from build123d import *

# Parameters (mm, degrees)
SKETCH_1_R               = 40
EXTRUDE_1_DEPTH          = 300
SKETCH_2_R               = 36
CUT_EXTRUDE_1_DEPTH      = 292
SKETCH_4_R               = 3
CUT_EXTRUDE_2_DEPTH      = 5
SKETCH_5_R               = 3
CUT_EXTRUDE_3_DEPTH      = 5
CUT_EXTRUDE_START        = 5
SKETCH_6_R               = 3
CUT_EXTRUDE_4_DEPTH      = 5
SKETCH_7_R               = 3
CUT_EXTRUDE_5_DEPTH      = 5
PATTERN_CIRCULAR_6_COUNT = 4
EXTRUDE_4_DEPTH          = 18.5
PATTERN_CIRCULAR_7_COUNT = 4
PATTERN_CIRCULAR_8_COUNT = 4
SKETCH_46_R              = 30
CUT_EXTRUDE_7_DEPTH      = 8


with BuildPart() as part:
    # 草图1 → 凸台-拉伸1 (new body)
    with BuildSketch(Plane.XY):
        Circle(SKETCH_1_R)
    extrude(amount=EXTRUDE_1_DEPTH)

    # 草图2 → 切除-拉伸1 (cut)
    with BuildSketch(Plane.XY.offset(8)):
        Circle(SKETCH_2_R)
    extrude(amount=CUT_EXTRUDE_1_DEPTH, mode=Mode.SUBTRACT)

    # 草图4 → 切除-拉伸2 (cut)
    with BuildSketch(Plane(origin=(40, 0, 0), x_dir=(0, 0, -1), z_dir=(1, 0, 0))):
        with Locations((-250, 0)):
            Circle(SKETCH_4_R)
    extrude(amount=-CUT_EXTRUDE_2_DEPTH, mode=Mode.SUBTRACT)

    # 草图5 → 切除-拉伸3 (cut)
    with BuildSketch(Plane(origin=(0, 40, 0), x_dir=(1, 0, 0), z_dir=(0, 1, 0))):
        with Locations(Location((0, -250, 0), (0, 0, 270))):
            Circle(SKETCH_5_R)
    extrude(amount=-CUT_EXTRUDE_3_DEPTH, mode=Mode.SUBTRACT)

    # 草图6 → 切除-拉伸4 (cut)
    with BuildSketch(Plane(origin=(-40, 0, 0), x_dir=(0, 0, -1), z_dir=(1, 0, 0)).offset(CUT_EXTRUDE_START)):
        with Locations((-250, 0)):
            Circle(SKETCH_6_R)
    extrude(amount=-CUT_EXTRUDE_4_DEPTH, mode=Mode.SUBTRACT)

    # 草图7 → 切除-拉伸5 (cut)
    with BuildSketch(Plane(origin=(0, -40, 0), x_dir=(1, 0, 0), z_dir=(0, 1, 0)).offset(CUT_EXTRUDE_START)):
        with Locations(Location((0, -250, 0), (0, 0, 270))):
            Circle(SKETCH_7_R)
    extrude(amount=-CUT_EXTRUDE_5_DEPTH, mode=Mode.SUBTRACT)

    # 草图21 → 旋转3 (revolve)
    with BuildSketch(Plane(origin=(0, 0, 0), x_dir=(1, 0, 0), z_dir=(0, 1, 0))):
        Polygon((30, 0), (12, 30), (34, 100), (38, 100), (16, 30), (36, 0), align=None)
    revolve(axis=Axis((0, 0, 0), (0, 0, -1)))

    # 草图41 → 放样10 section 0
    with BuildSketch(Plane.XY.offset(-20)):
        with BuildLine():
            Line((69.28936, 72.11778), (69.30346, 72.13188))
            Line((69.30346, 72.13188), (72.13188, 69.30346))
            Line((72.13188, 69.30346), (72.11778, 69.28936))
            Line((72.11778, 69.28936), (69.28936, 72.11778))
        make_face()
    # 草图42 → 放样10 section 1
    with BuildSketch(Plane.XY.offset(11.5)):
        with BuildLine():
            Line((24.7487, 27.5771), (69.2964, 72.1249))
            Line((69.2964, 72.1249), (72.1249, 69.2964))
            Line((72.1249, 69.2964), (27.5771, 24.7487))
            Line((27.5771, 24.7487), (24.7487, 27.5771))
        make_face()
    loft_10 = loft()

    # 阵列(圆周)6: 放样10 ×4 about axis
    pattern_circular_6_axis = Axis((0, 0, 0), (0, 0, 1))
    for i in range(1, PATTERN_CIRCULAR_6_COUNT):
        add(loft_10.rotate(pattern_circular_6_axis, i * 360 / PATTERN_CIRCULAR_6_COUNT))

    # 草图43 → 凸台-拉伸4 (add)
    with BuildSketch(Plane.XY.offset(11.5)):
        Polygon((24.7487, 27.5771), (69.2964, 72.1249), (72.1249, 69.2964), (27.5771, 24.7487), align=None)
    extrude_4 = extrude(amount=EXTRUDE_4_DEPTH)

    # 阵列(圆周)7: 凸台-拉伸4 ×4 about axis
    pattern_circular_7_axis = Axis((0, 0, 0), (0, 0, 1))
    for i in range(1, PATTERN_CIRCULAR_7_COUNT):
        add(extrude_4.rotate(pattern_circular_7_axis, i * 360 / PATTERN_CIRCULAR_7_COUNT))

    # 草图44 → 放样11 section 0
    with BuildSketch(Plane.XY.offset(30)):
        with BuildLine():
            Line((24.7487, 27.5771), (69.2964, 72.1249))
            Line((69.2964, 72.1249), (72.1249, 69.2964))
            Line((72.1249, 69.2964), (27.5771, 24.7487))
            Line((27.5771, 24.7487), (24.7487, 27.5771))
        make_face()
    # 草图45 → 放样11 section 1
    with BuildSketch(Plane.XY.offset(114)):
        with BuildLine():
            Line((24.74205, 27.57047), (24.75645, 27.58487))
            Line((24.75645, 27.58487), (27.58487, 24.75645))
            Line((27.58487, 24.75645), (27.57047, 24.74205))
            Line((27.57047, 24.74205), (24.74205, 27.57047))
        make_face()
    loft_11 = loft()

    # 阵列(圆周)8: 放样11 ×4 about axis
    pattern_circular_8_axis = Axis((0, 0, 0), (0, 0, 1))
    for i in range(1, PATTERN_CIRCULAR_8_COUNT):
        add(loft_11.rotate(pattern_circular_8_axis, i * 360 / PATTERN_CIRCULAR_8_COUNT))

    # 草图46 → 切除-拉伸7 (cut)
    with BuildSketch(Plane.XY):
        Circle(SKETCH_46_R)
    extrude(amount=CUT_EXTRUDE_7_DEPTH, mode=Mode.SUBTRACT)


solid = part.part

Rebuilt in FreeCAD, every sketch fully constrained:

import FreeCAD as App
import Part
import Sketcher
from FreeCAD import Vector
Q = App.Units.Quantity


def add_polygon(sketch, points):
    """Adds a closed chain of lines whose ends are joined by coincident constraints."""
    first, n = sketch.GeometryCount, len(points)
    for a, b in zip(points, points[1:] + points[:1]):
        sketch.addGeometry(Part.LineSegment(App.Vector(*a, 0), App.Vector(*b, 0)), False)
    for i in range(n):
        sketch.addConstraint(Sketcher.Constraint("Coincident", first + i, 2, first + (i + 1) % n, 1))

doc = App.newDocument("Part")
body = doc.addObject("PartDesign::Body", "Body")

# Sketch on XY plane
sketch1 = body.newObject("Sketcher::SketchObject", "Sketch")
sketch1.AttachmentSupport = (doc.getObject("XY_Plane"), [""])
sketch1.MapMode = "FlatFace"
sketch1.addGeometry(Part.Circle(Vector(0, 0, 0), Vector(0, 0, 1), 40), False)
sketch1.addConstraint(Sketcher.Constraint("Coincident", 0, 3, -1, 1))
sketch1.addConstraint(Sketcher.Constraint("Diameter", 0, Q("80 mm")))
pad1 = body.newObject("PartDesign::Pad", "Pad")
pad1.Profile = sketch1
pad1.Length = 300

# Sketch on XY plane
sketch2 = body.newObject("Sketcher::SketchObject", "Sketch001")
sketch2.AttachmentSupport = (doc.getObject("XY_Plane"), [""])
sketch2.MapMode = "FlatFace"
sketch2.AttachmentOffset = App.Placement(Vector(0, 0, 8), App.Rotation())
sketch2.addGeometry(Part.Circle(Vector(0, 0, 0), Vector(0, 0, 1), 36), False)
sketch2.addConstraint(Sketcher.Constraint("Coincident", 0, 3, -1, 1))
sketch2.addConstraint(Sketcher.Constraint("Diameter", 0, Q("72 mm")))
pocket1 = body.newObject("PartDesign::Pocket", "Pocket")
pocket1.Profile = sketch2
pocket1.Length = 292
pocket1.Reversed = True

# Sketch on YZ plane
sketch3 = body.newObject("Sketcher::SketchObject", "Sketch002")
sketch3.AttachmentSupport = (doc.getObject("YZ_Plane"), [""])
sketch3.MapMode = "FlatFace"
sketch3.AttachmentOffset = App.Placement(Vector(0, 0, 40), App.Rotation())
sketch3.addGeometry(Part.Circle(Vector(0, 250, 0), Vector(0, 0, 1), 3), False)
sketch3.addConstraint(Sketcher.Constraint("PointOnObject", 0, 3, -2))
sketch3.addConstraint(Sketcher.Constraint("Diameter", 0, Q("6 mm")))
sketch3.addConstraint(Sketcher.Constraint("DistanceY", -1, 1, 0, 3, Q("250 mm")))
pocket2 = body.newObject("PartDesign::Pocket", "Pocket001")
pocket2.Profile = sketch3
pocket2.Length = 5

# Sketch on XZ plane
sketch4 = body.newObject("Sketcher::SketchObject", "Sketch003")
sketch4.AttachmentSupport = (doc.getObject("XZ_Plane"), [""])
sketch4.MapMode = "FlatFace"
sketch4.AttachmentOffset = App.Placement(Vector(0, 0, -40), App.Rotation())
sketch4.addGeometry(Part.Circle(Vector(0, 250, 0), Vector(0, 0, 1), 3), False)
sketch4.addConstraint(Sketcher.Constraint("PointOnObject", 0, 3, -2))
sketch4.addConstraint(Sketcher.Constraint("Diameter", 0, Q("6 mm")))
sketch4.addConstraint(Sketcher.Constraint("DistanceY", -1, 1, 0, 3, Q("250 mm")))
pocket3 = body.newObject("PartDesign::Pocket", "Pocket002")
pocket3.Profile = sketch4
pocket3.Length = 5
pocket3.Reversed = True

# Sketch on YZ plane
sketch5 = body.newObject("Sketcher::SketchObject", "Sketch004")
sketch5.AttachmentSupport = (doc.getObject("YZ_Plane"), [""])
sketch5.MapMode = "FlatFace"
sketch5.AttachmentOffset = App.Placement(Vector(0, 0, -35), App.Rotation())
sketch5.addGeometry(Part.Circle(Vector(0, 250, 0), Vector(0, 0, 1), 3), False)
sketch5.addConstraint(Sketcher.Constraint("PointOnObject", 0, 3, -2))
sketch5.addConstraint(Sketcher.Constraint("Diameter", 0, Q("6 mm")))
sketch5.addConstraint(Sketcher.Constraint("DistanceY", -1, 1, 0, 3, Q("250 mm")))
pocket4 = body.newObject("PartDesign::Pocket", "Pocket003")
pocket4.Profile = sketch5
pocket4.Length = 5

# Sketch on XZ plane
sketch6 = body.newObject("Sketcher::SketchObject", "Sketch005")
sketch6.AttachmentSupport = (doc.getObject("XZ_Plane"), [""])
sketch6.MapMode = "FlatFace"
sketch6.AttachmentOffset = App.Placement(Vector(0, 0, 35), App.Rotation())
sketch6.addGeometry(Part.Circle(Vector(0, 250, 0), Vector(0, 0, 1), 3), False)
sketch6.addConstraint(Sketcher.Constraint("PointOnObject", 0, 3, -2))
sketch6.addConstraint(Sketcher.Constraint("Diameter", 0, Q("6 mm")))
sketch6.addConstraint(Sketcher.Constraint("DistanceY", -1, 1, 0, 3, Q("250 mm")))
pocket5 = body.newObject("PartDesign::Pocket", "Pocket004")
pocket5.Profile = sketch6
pocket5.Length = 5
pocket5.Reversed = True

# Sketch on XZ plane
sketch7 = body.newObject("Sketcher::SketchObject", "Sketch006")
sketch7.AttachmentSupport = (doc.getObject("XZ_Plane"), [""])
sketch7.MapMode = "FlatFace"
add_polygon(sketch7, [(12, -30), (30, 0), (36, 0), (16, -30), (38, -100), (34, -100)])  # lines 0-5
sketch7.addConstraint(Sketcher.Constraint("Horizontal", 1))
sketch7.addConstraint(Sketcher.Constraint("Horizontal", 4))
sketch7.addConstraint(Sketcher.Constraint("PointOnObject", 0, 2, -1))
sketch7.addConstraint(Sketcher.Constraint("Parallel", 3, 5))
sketch7.addConstraint(Sketcher.Constraint("Horizontal", 2, 2, 5, 2))
sketch7.addConstraint(Sketcher.Constraint("DistanceX", 1, 1, 1, 2, Q("6 mm")))
sketch7.addConstraint(Sketcher.Constraint("DistanceX", 4, 2, 4, 1, Q("4 mm")))
sketch7.addConstraint(Sketcher.Constraint("DistanceX", -1, 1, 0, 2, Q("30 mm")))
sketch7.addConstraint(Sketcher.Constraint("DistanceX", -1, 1, 2, 2, Q("16 mm")))
sketch7.addConstraint(Sketcher.Constraint("DistanceY", 2, 2, -1, 1, Q("30 mm")))
sketch7.addConstraint(Sketcher.Constraint("DistanceX", -1, 1, 3, 2, Q("38 mm")))
sketch7.addConstraint(Sketcher.Constraint("DistanceY", 3, 2, -1, 1, Q("100 mm")))
revolution = body.newObject("PartDesign::Revolution", "Revolution")
revolution.Profile = sketch7
revolution.ReferenceAxis = (sketch7, ["V_Axis"])
revolution.Angle = 360

# Sketch on XY plane
sketch8 = body.newObject("Sketcher::SketchObject", "Sketch007")
sketch8.AttachmentSupport = (doc.getObject("XY_Plane"), [""])
sketch8.MapMode = "FlatFace"
sketch8.AttachmentOffset = App.Placement(Vector(0, 0, -20), App.Rotation())
add_polygon(sketch8, [(69.303, 72.132), (69.289, 72.118), (72.118, 69.289), (72.132, 69.303)])  # lines 0-3
sketch8.addConstraint(Sketcher.Constraint("Perpendicular", 0, 1))
sketch8.addConstraint(Sketcher.Constraint("Perpendicular", 1, 2))
sketch8.addConstraint(Sketcher.Constraint("Perpendicular", 2, 3))
sketch8.addConstraint(Sketcher.Constraint("Angle", 0, Q("-135 deg")))
sketch8.addConstraint(Sketcher.Constraint("DistanceX", 1, 2, 2, 2, Q("0.0141 mm")))
sketch8.addConstraint(Sketcher.Constraint("Distance", 1, Q("3.99999 mm")))
sketch8.addConstraint(Sketcher.Constraint("DistanceX", -1, 1, 0, 2, Q("69.28936 mm")))
sketch8.addConstraint(Sketcher.Constraint("DistanceY", -1, 1, 0, 2, Q("72.11778 mm")))

# Sketch on XY plane
sketch9 = body.newObject("Sketcher::SketchObject", "Sketch008")
sketch9.AttachmentSupport = (doc.getObject("XY_Plane"), [""])
sketch9.MapMode = "FlatFace"
sketch9.AttachmentOffset = App.Placement(Vector(0, 0, 11.5), App.Rotation())
add_polygon(sketch9, [(69.2964, 72.1249), (24.7487, 27.5771), (27.5771, 24.7487), (72.1249, 69.2964)])  # lines 0-3
sketch9.addConstraint(Sketcher.Constraint("DistanceX", -1, 1, 0, 2, Q("24.7487 mm")))
sketch9.addConstraint(Sketcher.Constraint("DistanceY", -1, 1, 0, 2, Q("27.5771 mm")))
sketch9.addConstraint(Sketcher.Constraint("DistanceX", -1, 1, 1, 2, Q("27.5771 mm")))
sketch9.addConstraint(Sketcher.Constraint("DistanceY", -1, 1, 1, 2, Q("24.7487 mm")))
sketch9.addConstraint(Sketcher.Constraint("DistanceX", -1, 1, 2, 2, Q("72.1249 mm")))
sketch9.addConstraint(Sketcher.Constraint("DistanceY", -1, 1, 2, 2, Q("69.2964 mm")))
sketch9.addConstraint(Sketcher.Constraint("DistanceX", -1, 1, 3, 2, Q("69.2964 mm")))
sketch9.addConstraint(Sketcher.Constraint("DistanceY", -1, 1, 3, 2, Q("72.1249 mm")))

additiveloft = body.newObject("PartDesign::AdditiveLoft", "AdditiveLoft")
additiveloft.Profile = sketch8
additiveloft.Sections = [sketch9]
doc.recompute()

polarpattern = body.newObject("PartDesign::PolarPattern", "PolarPattern")
polarpattern.Originals = [additiveloft]
polarpattern.Axis = (doc.getObject("Z_Axis"), [""])
polarpattern.Angle = 360
polarpattern.Occurrences = 4
body.Tip = polarpattern

# Sketch on XY plane
sketch10 = body.newObject("Sketcher::SketchObject", "Sketch009")
sketch10.AttachmentSupport = (doc.getObject("XY_Plane"), [""])
sketch10.MapMode = "FlatFace"
sketch10.AttachmentOffset = App.Placement(Vector(0, 0, 11.5), App.Rotation())
add_polygon(sketch10, [(69.2964, 72.1249), (24.7487, 27.5771), (27.5771, 24.7487), (72.1249, 69.2964)])  # lines 0-3
sketch10.addConstraint(Sketcher.Constraint("DistanceX", -1, 1, 0, 2, Q("24.7487 mm")))
sketch10.addConstraint(Sketcher.Constraint("DistanceY", -1, 1, 0, 2, Q("27.5771 mm")))
sketch10.addConstraint(Sketcher.Constraint("DistanceX", -1, 1, 1, 2, Q("27.5771 mm")))
sketch10.addConstraint(Sketcher.Constraint("DistanceY", -1, 1, 1, 2, Q("24.7487 mm")))
sketch10.addConstraint(Sketcher.Constraint("DistanceX", -1, 1, 2, 2, Q("72.1249 mm")))
sketch10.addConstraint(Sketcher.Constraint("DistanceY", -1, 1, 2, 2, Q("69.2964 mm")))
sketch10.addConstraint(Sketcher.Constraint("DistanceX", -1, 1, 3, 2, Q("69.2964 mm")))
sketch10.addConstraint(Sketcher.Constraint("DistanceY", -1, 1, 3, 2, Q("72.1249 mm")))
pad2 = body.newObject("PartDesign::Pad", "Pad001")
pad2.Profile = sketch10
pad2.Length = 18.5
doc.recompute()

polarpattern2 = body.newObject("PartDesign::PolarPattern", "PolarPattern001")
polarpattern2.Originals = [pad2]
polarpattern2.Axis = (doc.getObject("Z_Axis"), [""])
polarpattern2.Angle = 360
polarpattern2.Occurrences = 4
body.Tip = polarpattern2

# Sketch on XY plane
sketch11 = body.newObject("Sketcher::SketchObject", "Sketch010")
sketch11.AttachmentSupport = (doc.getObject("XY_Plane"), [""])
sketch11.MapMode = "FlatFace"
sketch11.AttachmentOffset = App.Placement(Vector(0, 0, 30), App.Rotation())
add_polygon(sketch11, [(69.2964, 72.1249), (24.7487, 27.5771), (27.5771, 24.7487), (72.1249, 69.2964)])  # lines 0-3
sketch11.addConstraint(Sketcher.Constraint("DistanceX", -1, 1, 0, 2, Q("24.7487 mm")))
sketch11.addConstraint(Sketcher.Constraint("DistanceY", -1, 1, 0, 2, Q("27.5771 mm")))
sketch11.addConstraint(Sketcher.Constraint("DistanceX", -1, 1, 1, 2, Q("27.5771 mm")))
sketch11.addConstraint(Sketcher.Constraint("DistanceY", -1, 1, 1, 2, Q("24.7487 mm")))
sketch11.addConstraint(Sketcher.Constraint("DistanceX", -1, 1, 2, 2, Q("72.1249 mm")))
sketch11.addConstraint(Sketcher.Constraint("DistanceY", -1, 1, 2, 2, Q("69.2964 mm")))
sketch11.addConstraint(Sketcher.Constraint("DistanceX", -1, 1, 3, 2, Q("69.2964 mm")))
sketch11.addConstraint(Sketcher.Constraint("DistanceY", -1, 1, 3, 2, Q("72.1249 mm")))

# Sketch on XY plane
sketch12 = body.newObject("Sketcher::SketchObject", "Sketch011")
sketch12.AttachmentSupport = (doc.getObject("XY_Plane"), [""])
sketch12.MapMode = "FlatFace"
sketch12.AttachmentOffset = App.Placement(Vector(0, 0, 114), App.Rotation())
add_polygon(sketch12, [(24.756, 27.585), (24.742, 27.57), (27.57, 24.742), (27.585, 24.756)])  # lines 0-3
sketch12.addConstraint(Sketcher.Constraint("Perpendicular", 0, 1))
sketch12.addConstraint(Sketcher.Constraint("Perpendicular", 1, 2))
sketch12.addConstraint(Sketcher.Constraint("Perpendicular", 2, 3))
sketch12.addConstraint(Sketcher.Constraint("Angle", 0, Q("-135 deg")))
sketch12.addConstraint(Sketcher.Constraint("DistanceX", 1, 2, 2, 2, Q("0.0144 mm")))
sketch12.addConstraint(Sketcher.Constraint("Distance", 1, Q("3.99999 mm")))
sketch12.addConstraint(Sketcher.Constraint("DistanceX", -1, 1, 0, 2, Q("24.74205 mm")))
sketch12.addConstraint(Sketcher.Constraint("DistanceY", -1, 1, 0, 2, Q("27.57047 mm")))

additiveloft2 = body.newObject("PartDesign::AdditiveLoft", "AdditiveLoft001")
additiveloft2.Profile = sketch11
additiveloft2.Sections = [sketch12]
doc.recompute()

polarpattern3 = body.newObject("PartDesign::PolarPattern", "PolarPattern002")
polarpattern3.Originals = [additiveloft2]
polarpattern3.Axis = (doc.getObject("Z_Axis"), [""])
polarpattern3.Angle = 360
polarpattern3.Occurrences = 4
body.Tip = polarpattern3

# Sketch on XY plane
sketch13 = body.newObject("Sketcher::SketchObject", "Sketch012")
sketch13.AttachmentSupport = (doc.getObject("XY_Plane"), [""])
sketch13.MapMode = "FlatFace"
sketch13.addGeometry(Part.Circle(Vector(0, 0, 0), Vector(0, 0, 1), 30), False)
sketch13.addConstraint(Sketcher.Constraint("Coincident", 0, 3, -1, 1))
sketch13.addConstraint(Sketcher.Constraint("Diameter", 0, Q("60 mm")))
pocket6 = body.newObject("PartDesign::Pocket", "Pocket005")
pocket6.Profile = sketch13
pocket6.Length = 8
pocket6.Reversed = True

doc.recompute()
